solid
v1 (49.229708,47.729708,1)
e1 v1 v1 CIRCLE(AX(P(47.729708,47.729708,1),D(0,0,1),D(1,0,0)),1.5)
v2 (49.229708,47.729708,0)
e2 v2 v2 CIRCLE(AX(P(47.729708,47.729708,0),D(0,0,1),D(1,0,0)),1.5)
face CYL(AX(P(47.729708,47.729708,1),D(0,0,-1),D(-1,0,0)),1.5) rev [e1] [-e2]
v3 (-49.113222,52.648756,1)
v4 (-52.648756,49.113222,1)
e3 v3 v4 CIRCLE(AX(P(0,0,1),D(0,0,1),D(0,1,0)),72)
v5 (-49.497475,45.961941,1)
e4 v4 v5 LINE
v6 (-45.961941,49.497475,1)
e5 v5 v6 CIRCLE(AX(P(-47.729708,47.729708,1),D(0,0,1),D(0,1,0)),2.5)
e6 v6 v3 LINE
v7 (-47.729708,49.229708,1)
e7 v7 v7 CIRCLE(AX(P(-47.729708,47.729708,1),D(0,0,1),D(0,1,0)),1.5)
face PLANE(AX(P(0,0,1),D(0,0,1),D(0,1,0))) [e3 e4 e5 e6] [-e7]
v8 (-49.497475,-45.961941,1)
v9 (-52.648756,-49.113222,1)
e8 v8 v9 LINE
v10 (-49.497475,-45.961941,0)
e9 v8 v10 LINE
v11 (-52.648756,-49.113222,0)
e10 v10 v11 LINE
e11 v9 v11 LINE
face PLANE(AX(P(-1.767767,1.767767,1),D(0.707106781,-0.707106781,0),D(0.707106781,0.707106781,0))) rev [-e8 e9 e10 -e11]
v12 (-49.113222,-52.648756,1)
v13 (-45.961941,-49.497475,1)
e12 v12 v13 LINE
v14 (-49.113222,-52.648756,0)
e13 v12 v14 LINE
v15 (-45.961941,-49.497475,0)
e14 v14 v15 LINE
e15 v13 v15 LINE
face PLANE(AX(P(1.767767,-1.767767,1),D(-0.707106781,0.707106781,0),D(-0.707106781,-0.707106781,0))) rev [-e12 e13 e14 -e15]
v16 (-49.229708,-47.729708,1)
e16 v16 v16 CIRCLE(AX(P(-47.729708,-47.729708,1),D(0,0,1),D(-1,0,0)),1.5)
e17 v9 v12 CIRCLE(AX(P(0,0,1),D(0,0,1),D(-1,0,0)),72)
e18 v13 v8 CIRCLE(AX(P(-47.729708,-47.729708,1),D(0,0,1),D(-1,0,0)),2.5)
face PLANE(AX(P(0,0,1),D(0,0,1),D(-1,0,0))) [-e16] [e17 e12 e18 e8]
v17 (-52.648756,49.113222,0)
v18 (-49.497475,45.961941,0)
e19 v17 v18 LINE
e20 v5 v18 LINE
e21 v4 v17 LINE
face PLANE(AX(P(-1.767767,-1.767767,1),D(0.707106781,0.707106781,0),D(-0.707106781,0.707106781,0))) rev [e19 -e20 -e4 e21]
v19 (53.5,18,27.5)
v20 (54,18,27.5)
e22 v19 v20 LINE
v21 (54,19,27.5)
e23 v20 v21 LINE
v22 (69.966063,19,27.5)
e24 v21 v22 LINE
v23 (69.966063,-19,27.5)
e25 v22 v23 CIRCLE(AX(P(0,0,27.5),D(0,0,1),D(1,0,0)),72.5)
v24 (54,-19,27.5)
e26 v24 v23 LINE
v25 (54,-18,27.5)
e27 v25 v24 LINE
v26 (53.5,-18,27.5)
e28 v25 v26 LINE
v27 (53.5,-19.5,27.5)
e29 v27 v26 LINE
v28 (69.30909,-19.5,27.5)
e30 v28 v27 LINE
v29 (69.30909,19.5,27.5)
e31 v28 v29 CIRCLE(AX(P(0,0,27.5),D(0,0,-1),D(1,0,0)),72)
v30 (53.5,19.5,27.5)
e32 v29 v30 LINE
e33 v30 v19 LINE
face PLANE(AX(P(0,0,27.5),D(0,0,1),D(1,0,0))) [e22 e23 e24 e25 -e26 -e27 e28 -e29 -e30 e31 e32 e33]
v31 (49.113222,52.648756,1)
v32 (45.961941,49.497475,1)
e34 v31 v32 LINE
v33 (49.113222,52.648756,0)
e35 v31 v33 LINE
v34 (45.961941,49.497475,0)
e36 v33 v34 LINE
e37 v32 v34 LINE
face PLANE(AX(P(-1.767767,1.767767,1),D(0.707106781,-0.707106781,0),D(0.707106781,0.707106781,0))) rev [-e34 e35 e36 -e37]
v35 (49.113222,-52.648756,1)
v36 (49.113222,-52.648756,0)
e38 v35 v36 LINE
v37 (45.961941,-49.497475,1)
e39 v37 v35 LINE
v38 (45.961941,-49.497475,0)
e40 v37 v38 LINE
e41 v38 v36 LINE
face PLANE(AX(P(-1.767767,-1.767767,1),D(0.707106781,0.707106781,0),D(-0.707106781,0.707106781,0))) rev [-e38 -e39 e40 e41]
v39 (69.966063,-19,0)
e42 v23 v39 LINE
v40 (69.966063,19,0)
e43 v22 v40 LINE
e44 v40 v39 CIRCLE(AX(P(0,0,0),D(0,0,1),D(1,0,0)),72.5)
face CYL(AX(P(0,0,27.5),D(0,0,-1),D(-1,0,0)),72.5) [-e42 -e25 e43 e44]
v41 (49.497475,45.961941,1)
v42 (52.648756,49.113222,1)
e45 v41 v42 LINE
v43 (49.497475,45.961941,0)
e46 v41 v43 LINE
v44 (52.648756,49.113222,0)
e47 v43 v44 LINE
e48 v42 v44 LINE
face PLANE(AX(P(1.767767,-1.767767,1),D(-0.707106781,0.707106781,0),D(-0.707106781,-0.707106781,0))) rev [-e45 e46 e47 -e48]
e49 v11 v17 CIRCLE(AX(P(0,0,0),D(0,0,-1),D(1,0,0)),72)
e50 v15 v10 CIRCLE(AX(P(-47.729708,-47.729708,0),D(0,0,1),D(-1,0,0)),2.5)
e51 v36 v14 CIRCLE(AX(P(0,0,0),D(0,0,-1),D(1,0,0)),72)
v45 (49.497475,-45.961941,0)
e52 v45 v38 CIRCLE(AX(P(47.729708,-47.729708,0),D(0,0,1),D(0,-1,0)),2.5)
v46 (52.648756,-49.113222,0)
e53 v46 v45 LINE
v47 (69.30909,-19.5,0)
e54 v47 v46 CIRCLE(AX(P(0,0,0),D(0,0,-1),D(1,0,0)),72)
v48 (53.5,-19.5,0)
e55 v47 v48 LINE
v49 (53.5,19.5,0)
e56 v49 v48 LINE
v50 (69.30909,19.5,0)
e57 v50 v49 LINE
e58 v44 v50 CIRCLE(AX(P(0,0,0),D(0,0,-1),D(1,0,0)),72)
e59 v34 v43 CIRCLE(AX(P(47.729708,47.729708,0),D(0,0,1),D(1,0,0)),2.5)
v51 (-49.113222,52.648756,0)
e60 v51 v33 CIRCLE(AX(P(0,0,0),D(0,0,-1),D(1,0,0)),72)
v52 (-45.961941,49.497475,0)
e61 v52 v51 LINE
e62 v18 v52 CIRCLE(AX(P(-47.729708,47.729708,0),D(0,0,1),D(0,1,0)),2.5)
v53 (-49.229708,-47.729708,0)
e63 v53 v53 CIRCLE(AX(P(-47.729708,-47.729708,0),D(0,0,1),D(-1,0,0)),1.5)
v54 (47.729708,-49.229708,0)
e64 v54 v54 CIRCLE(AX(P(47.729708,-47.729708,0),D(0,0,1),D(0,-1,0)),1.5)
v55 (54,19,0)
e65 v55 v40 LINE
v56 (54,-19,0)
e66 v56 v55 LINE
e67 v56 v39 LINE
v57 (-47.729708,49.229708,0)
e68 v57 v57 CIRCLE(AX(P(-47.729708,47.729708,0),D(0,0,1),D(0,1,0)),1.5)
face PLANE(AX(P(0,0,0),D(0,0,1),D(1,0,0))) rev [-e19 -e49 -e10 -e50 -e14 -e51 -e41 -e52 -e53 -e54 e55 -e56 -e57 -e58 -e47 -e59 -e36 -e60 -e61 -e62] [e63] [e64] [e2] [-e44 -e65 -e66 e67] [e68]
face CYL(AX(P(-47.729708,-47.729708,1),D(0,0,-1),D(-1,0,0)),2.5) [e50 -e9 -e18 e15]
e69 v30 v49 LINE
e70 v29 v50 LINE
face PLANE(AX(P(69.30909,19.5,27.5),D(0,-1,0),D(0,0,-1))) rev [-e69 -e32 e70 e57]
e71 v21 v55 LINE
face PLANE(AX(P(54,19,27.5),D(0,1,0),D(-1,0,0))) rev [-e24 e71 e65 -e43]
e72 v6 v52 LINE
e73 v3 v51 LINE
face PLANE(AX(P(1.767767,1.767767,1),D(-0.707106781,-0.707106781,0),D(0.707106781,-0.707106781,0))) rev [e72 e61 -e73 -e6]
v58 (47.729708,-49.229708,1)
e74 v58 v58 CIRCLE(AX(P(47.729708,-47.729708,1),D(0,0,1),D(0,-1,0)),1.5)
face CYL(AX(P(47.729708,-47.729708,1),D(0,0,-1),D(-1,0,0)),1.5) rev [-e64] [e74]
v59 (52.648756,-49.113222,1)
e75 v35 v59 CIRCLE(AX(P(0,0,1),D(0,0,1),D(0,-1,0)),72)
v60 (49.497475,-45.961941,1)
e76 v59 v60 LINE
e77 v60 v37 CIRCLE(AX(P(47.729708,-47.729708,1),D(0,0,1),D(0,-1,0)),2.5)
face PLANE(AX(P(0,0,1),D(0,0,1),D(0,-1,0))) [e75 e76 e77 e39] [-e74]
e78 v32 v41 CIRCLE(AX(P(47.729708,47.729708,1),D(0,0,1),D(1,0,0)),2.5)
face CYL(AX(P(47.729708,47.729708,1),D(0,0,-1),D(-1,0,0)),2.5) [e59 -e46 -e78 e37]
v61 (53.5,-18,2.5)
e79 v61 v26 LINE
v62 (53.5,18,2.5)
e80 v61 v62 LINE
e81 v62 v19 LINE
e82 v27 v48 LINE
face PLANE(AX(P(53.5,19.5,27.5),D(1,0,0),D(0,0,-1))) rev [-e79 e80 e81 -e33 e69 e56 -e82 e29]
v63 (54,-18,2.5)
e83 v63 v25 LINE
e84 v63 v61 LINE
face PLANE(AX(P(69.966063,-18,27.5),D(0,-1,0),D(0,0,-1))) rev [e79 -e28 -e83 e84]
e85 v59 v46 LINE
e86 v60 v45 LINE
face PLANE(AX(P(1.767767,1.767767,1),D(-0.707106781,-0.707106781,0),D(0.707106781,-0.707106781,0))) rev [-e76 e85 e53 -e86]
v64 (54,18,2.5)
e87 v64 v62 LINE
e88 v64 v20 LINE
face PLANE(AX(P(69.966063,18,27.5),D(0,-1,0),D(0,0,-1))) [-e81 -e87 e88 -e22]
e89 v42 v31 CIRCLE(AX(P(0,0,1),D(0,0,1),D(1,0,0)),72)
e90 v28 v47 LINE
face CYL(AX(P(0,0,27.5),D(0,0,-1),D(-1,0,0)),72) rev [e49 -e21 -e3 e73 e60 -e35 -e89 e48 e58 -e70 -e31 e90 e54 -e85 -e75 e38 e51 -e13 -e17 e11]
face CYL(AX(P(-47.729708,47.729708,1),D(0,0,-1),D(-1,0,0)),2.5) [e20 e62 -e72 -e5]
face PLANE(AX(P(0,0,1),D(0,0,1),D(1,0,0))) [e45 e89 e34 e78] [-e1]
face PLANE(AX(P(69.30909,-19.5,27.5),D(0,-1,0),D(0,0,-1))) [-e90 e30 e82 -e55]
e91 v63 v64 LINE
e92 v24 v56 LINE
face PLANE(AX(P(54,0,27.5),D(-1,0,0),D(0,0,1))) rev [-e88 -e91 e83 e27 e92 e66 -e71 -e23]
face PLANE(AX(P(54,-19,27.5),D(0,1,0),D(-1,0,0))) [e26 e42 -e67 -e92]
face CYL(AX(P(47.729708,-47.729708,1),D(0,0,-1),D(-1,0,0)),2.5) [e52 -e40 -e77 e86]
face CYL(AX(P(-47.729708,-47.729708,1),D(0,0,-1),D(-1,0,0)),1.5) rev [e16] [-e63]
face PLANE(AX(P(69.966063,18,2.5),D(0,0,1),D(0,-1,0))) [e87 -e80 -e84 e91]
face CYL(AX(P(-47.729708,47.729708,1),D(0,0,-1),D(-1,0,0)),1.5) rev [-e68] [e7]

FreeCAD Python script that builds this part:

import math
import FreeCAD as App
import Part
import Sketcher
Q = App.Units.Quantity

doc = App.newDocument("Part")
params = doc.addObject("Spreadsheet::Sheet", "Params")
for row, (alias, value) in enumerate([
    ("sketch1_radius", "72 mm"),
    ("sketch1_radius2", "72.5 mm"),
    ("sketch1_height", "19 mm"),
    ("sketch1_height2", "19.5 mm"),
    ("pad1_length", "27.5 mm"),
    ("sketch2_width", "18 mm"),
    ("sketch2_height", "25 mm"),
    ("sketch3_diameter", "3 mm"),
    ("sketch3_radius", "72.000001 mm"),
    ("sketch3_radius2", "2.5 mm"),
    ("pad2_length", "1 mm"),
], start=1):
    params.set(f"A{row}", alias)
    params.set(f"B{row}", "=" + value)
    params.setAlias(f"B{row}", alias)

body = doc.addObject("PartDesign::Body", "Body")

# Sketch on XY plane
sketch1 = body.newObject("Sketcher::SketchObject", "Sketch")
sketch1.AttachmentSupport = (doc.getObject("XY_Plane"), [""])
sketch1.MapMode = "FlatFace"
sketch1.addGeometry([
    Part.LineSegment(App.Vector(69.3, 19.5, 0), App.Vector(53.5, 19.5, 0)),  # 0
    Part.LineSegment(App.Vector(53.5, 19.5, 0), App.Vector(53.5, 0, 0)),  # 1
    Part.LineSegment(App.Vector(53.5, 0, 0), App.Vector(54, 0, 0)),  # 2
    Part.LineSegment(App.Vector(54, 0, 0), App.Vector(54, 19, 0)),  # 3
    Part.LineSegment(App.Vector(54, 19, 0), App.Vector(70, 19, 0)),  # 4
    Part.ArcOfCircle(Part.Circle(App.Vector(0, 0, 0), App.Vector(0, 0, 1), 72.5), math.radians(15), math.radians(180)),  # 5
    Part.LineSegment(App.Vector(-72.5, 0, 0), App.Vector(-72, 0, 0)),  # 6
    Part.ArcOfCircle(Part.Circle(App.Vector(0, 0, 0), App.Vector(0, 0, 1), 72), math.radians(16), math.radians(180)),  # 7
], False)
sketch1.addConstraint([
    Sketcher.Constraint("Coincident", 0, 2, 1, 1),
    Sketcher.Constraint("Coincident", 1, 2, 2, 1),
    Sketcher.Constraint("Coincident", 2, 2, 3, 1),
    Sketcher.Constraint("Coincident", 3, 2, 4, 1),
    Sketcher.Constraint("Coincident", 4, 2, 5, 1),
    Sketcher.Constraint("Coincident", 5, 2, 6, 1),
    Sketcher.Constraint("Coincident", 6, 2, 7, 2),
    Sketcher.Constraint("Coincident", 7, 1, 0, 1),
    Sketcher.Constraint("Horizontal", 0),
    Sketcher.Constraint("Vertical", 1),
    Sketcher.Constraint("Horizontal", 2),
    Sketcher.Constraint("Vertical", 3),
    Sketcher.Constraint("Horizontal", 4),
    Sketcher.Constraint("Horizontal", 6),
    Sketcher.Constraint("Coincident", 5, 3, -1, 1),
    Sketcher.Constraint("Coincident", 7, 3, -1, 1),
    Sketcher.Constraint("PointOnObject", 1, 2, -1),
    Sketcher.Constraint("PointOnObject", 5, 2, -1),
    Sketcher.Constraint("Equal", 2, 6),
    Sketcher.Constraint("Radius", 7, 72.0),
    Sketcher.Constraint("Radius", 5, 72.5),
    Sketcher.Constraint("DistanceY", 3, 1, 3, 2, 19.0),
    Sketcher.Constraint("DistanceY", 1, 2, 1, 1, 19.5),
    Sketcher.Constraint("DistanceX", -1, 1, 2, 2, 54.0),
])
sketch1.setExpression("Constraints[19]", "Params.sketch1_radius")
sketch1.setExpression("Constraints[20]", "Params.sketch1_radius2")
sketch1.setExpression("Constraints[21]", "Params.sketch1_height")
sketch1.setExpression("Constraints[22]", "Params.sketch1_height2")
pad1 = body.newObject("PartDesign::Pad", "Pad")
pad1.Profile = sketch1
pad1.setExpression("Length", "Params.pad1_length")

# Sketch on YZ plane
sketch2 = body.newObject("Sketcher::SketchObject", "Sketch001")
sketch2.AttachmentSupport = (doc.getObject("YZ_Plane"), [""])
sketch2.MapMode = "FlatFace"
sketch2.AttachmentOffset = App.Placement(App.Vector(0, 0, 53.5), App.Rotation())
sketch2.addGeometry([
    Part.LineSegment(App.Vector(18, 28, 0), App.Vector(0, 28, 0)),
    Part.LineSegment(App.Vector(0, 28, 0), App.Vector(0, 2, 0)),
    Part.LineSegment(App.Vector(0, 2, 0), App.Vector(18, 2, 0)),
    Part.LineSegment(App.Vector(18, 2, 0), App.Vector(18, 28, 0)),
], False)
sketch2.addConstraint([
    Sketcher.Constraint("Coincident", 0, 2, 1, 1),
    Sketcher.Constraint("Coincident", 1, 2, 2, 1),
    Sketcher.Constraint("Coincident", 2, 2, 3, 1),
    Sketcher.Constraint("Coincident", 3, 2, 0, 1),
    Sketcher.Constraint("Horizontal", 0),
    Sketcher.Constraint("Vertical", 1),
    Sketcher.Constraint("Horizontal", 2),
    Sketcher.Constraint("Vertical", 3),
    Sketcher.Constraint("PointOnObject", 0, 2, -2),
    Sketcher.Constraint("DistanceX", 0, 2, 0, 1, 18.0),
    Sketcher.Constraint("DistanceY", 1, 2, 1, 1, 25.0),
    Sketcher.Constraint("DistanceY", -1, 1, 0, 2, 27.5),
])
sketch2.setExpression("Constraints[9]", "Params.sketch2_width")
sketch2.setExpression("Constraints[10]", "Params.sketch2_height")
pocket1 = body.newObject("PartDesign::Pocket", "Pocket")
pocket1.Profile = sketch2
pocket1.Type = "ThroughAll"
pocket1.Reversed = True
doc.recompute()

mirrored = body.newObject("PartDesign::Mirrored", "Mirrored")
mirrored.Originals = [pad1, pocket1]
mirrored.MirrorPlane = (doc.getObject("XZ_Plane"), [""])
body.Tip = mirrored

# Sketch on XY plane
sketch3 = body.newObject("Sketcher::SketchObject", "Sketch002")
sketch3.AttachmentSupport = (doc.getObject("XY_Plane"), [""])
sketch3.MapMode = "FlatFace"
sketch3.addGeometry([
    Part.ArcOfCircle(Part.Circle(App.Vector(0, 0, 0), App.Vector(0, 0, 1), 72), math.radians(43.01), math.radians(46.99)),  # 0
    Part.LineSegment(App.Vector(49.1, 52.6, 0), App.Vector(46, 49.5, 0)),  # 1
    Part.ArcOfCircle(Part.Circle(App.Vector(47.7, 47.7, 0), App.Vector(0, 0, 1), 2.5), math.radians(135), math.radians(315)),  # 2
    Part.LineSegment(App.Vector(49.5, 46, 0), App.Vector(52.6, 49.1, 0)),  # 3
    Part.Circle(App.Vector(47.7, 47.7, 0), App.Vector(0, 0, 1), 1.5),  # 4
], False)
sketch3.addConstraint([
    Sketcher.Constraint("Coincident", 0, 2, 1, 1),
    Sketcher.Constraint("Tangent", 1, 2, 2, 1),
    Sketcher.Constraint("Tangent", 2, 2, 3, 1),
    Sketcher.Constraint("Coincident", 3, 2, 0, 1),
    Sketcher.Constraint("Coincident", 0, 3, -1, 1),
    Sketcher.Constraint("Coincident", 4, 3, 2, 3),
    Sketcher.Constraint("Parallel", 1, 3),
    Sketcher.Constraint("Equal", 1, 3),
    Sketcher.Constraint("Diameter", 4, 3.0),
    Sketcher.Constraint("Radius", 0, 72.000001),
    Sketcher.Constraint("Radius", 2, 2.5),
    Sketcher.Constraint("Angle", 1, Q("-135 deg")),
    Sketcher.Constraint("DistanceX", -1, 1, 1, 2, 45.961941),
])
sketch3.setExpression("Constraints[8]", "Params.sketch3_diameter")
sketch3.setExpression("Constraints[9]", "Params.sketch3_radius")
sketch3.setExpression("Constraints[10]", "Params.sketch3_radius2")
pad2 = body.newObject("PartDesign::Pad", "Pad001")
pad2.Profile = sketch3
pad2.setExpression("Length", "Params.pad2_length")
doc.recompute()

polarpattern = body.newObject("PartDesign::PolarPattern", "PolarPattern")
polarpattern.Originals = [pad2]
polarpattern.Axis = (doc.getObject("Z_Axis"), [""])
polarpattern.Angle = 360
polarpattern.Occurrences = 4
body.Tip = polarpattern

doc.recompute()
